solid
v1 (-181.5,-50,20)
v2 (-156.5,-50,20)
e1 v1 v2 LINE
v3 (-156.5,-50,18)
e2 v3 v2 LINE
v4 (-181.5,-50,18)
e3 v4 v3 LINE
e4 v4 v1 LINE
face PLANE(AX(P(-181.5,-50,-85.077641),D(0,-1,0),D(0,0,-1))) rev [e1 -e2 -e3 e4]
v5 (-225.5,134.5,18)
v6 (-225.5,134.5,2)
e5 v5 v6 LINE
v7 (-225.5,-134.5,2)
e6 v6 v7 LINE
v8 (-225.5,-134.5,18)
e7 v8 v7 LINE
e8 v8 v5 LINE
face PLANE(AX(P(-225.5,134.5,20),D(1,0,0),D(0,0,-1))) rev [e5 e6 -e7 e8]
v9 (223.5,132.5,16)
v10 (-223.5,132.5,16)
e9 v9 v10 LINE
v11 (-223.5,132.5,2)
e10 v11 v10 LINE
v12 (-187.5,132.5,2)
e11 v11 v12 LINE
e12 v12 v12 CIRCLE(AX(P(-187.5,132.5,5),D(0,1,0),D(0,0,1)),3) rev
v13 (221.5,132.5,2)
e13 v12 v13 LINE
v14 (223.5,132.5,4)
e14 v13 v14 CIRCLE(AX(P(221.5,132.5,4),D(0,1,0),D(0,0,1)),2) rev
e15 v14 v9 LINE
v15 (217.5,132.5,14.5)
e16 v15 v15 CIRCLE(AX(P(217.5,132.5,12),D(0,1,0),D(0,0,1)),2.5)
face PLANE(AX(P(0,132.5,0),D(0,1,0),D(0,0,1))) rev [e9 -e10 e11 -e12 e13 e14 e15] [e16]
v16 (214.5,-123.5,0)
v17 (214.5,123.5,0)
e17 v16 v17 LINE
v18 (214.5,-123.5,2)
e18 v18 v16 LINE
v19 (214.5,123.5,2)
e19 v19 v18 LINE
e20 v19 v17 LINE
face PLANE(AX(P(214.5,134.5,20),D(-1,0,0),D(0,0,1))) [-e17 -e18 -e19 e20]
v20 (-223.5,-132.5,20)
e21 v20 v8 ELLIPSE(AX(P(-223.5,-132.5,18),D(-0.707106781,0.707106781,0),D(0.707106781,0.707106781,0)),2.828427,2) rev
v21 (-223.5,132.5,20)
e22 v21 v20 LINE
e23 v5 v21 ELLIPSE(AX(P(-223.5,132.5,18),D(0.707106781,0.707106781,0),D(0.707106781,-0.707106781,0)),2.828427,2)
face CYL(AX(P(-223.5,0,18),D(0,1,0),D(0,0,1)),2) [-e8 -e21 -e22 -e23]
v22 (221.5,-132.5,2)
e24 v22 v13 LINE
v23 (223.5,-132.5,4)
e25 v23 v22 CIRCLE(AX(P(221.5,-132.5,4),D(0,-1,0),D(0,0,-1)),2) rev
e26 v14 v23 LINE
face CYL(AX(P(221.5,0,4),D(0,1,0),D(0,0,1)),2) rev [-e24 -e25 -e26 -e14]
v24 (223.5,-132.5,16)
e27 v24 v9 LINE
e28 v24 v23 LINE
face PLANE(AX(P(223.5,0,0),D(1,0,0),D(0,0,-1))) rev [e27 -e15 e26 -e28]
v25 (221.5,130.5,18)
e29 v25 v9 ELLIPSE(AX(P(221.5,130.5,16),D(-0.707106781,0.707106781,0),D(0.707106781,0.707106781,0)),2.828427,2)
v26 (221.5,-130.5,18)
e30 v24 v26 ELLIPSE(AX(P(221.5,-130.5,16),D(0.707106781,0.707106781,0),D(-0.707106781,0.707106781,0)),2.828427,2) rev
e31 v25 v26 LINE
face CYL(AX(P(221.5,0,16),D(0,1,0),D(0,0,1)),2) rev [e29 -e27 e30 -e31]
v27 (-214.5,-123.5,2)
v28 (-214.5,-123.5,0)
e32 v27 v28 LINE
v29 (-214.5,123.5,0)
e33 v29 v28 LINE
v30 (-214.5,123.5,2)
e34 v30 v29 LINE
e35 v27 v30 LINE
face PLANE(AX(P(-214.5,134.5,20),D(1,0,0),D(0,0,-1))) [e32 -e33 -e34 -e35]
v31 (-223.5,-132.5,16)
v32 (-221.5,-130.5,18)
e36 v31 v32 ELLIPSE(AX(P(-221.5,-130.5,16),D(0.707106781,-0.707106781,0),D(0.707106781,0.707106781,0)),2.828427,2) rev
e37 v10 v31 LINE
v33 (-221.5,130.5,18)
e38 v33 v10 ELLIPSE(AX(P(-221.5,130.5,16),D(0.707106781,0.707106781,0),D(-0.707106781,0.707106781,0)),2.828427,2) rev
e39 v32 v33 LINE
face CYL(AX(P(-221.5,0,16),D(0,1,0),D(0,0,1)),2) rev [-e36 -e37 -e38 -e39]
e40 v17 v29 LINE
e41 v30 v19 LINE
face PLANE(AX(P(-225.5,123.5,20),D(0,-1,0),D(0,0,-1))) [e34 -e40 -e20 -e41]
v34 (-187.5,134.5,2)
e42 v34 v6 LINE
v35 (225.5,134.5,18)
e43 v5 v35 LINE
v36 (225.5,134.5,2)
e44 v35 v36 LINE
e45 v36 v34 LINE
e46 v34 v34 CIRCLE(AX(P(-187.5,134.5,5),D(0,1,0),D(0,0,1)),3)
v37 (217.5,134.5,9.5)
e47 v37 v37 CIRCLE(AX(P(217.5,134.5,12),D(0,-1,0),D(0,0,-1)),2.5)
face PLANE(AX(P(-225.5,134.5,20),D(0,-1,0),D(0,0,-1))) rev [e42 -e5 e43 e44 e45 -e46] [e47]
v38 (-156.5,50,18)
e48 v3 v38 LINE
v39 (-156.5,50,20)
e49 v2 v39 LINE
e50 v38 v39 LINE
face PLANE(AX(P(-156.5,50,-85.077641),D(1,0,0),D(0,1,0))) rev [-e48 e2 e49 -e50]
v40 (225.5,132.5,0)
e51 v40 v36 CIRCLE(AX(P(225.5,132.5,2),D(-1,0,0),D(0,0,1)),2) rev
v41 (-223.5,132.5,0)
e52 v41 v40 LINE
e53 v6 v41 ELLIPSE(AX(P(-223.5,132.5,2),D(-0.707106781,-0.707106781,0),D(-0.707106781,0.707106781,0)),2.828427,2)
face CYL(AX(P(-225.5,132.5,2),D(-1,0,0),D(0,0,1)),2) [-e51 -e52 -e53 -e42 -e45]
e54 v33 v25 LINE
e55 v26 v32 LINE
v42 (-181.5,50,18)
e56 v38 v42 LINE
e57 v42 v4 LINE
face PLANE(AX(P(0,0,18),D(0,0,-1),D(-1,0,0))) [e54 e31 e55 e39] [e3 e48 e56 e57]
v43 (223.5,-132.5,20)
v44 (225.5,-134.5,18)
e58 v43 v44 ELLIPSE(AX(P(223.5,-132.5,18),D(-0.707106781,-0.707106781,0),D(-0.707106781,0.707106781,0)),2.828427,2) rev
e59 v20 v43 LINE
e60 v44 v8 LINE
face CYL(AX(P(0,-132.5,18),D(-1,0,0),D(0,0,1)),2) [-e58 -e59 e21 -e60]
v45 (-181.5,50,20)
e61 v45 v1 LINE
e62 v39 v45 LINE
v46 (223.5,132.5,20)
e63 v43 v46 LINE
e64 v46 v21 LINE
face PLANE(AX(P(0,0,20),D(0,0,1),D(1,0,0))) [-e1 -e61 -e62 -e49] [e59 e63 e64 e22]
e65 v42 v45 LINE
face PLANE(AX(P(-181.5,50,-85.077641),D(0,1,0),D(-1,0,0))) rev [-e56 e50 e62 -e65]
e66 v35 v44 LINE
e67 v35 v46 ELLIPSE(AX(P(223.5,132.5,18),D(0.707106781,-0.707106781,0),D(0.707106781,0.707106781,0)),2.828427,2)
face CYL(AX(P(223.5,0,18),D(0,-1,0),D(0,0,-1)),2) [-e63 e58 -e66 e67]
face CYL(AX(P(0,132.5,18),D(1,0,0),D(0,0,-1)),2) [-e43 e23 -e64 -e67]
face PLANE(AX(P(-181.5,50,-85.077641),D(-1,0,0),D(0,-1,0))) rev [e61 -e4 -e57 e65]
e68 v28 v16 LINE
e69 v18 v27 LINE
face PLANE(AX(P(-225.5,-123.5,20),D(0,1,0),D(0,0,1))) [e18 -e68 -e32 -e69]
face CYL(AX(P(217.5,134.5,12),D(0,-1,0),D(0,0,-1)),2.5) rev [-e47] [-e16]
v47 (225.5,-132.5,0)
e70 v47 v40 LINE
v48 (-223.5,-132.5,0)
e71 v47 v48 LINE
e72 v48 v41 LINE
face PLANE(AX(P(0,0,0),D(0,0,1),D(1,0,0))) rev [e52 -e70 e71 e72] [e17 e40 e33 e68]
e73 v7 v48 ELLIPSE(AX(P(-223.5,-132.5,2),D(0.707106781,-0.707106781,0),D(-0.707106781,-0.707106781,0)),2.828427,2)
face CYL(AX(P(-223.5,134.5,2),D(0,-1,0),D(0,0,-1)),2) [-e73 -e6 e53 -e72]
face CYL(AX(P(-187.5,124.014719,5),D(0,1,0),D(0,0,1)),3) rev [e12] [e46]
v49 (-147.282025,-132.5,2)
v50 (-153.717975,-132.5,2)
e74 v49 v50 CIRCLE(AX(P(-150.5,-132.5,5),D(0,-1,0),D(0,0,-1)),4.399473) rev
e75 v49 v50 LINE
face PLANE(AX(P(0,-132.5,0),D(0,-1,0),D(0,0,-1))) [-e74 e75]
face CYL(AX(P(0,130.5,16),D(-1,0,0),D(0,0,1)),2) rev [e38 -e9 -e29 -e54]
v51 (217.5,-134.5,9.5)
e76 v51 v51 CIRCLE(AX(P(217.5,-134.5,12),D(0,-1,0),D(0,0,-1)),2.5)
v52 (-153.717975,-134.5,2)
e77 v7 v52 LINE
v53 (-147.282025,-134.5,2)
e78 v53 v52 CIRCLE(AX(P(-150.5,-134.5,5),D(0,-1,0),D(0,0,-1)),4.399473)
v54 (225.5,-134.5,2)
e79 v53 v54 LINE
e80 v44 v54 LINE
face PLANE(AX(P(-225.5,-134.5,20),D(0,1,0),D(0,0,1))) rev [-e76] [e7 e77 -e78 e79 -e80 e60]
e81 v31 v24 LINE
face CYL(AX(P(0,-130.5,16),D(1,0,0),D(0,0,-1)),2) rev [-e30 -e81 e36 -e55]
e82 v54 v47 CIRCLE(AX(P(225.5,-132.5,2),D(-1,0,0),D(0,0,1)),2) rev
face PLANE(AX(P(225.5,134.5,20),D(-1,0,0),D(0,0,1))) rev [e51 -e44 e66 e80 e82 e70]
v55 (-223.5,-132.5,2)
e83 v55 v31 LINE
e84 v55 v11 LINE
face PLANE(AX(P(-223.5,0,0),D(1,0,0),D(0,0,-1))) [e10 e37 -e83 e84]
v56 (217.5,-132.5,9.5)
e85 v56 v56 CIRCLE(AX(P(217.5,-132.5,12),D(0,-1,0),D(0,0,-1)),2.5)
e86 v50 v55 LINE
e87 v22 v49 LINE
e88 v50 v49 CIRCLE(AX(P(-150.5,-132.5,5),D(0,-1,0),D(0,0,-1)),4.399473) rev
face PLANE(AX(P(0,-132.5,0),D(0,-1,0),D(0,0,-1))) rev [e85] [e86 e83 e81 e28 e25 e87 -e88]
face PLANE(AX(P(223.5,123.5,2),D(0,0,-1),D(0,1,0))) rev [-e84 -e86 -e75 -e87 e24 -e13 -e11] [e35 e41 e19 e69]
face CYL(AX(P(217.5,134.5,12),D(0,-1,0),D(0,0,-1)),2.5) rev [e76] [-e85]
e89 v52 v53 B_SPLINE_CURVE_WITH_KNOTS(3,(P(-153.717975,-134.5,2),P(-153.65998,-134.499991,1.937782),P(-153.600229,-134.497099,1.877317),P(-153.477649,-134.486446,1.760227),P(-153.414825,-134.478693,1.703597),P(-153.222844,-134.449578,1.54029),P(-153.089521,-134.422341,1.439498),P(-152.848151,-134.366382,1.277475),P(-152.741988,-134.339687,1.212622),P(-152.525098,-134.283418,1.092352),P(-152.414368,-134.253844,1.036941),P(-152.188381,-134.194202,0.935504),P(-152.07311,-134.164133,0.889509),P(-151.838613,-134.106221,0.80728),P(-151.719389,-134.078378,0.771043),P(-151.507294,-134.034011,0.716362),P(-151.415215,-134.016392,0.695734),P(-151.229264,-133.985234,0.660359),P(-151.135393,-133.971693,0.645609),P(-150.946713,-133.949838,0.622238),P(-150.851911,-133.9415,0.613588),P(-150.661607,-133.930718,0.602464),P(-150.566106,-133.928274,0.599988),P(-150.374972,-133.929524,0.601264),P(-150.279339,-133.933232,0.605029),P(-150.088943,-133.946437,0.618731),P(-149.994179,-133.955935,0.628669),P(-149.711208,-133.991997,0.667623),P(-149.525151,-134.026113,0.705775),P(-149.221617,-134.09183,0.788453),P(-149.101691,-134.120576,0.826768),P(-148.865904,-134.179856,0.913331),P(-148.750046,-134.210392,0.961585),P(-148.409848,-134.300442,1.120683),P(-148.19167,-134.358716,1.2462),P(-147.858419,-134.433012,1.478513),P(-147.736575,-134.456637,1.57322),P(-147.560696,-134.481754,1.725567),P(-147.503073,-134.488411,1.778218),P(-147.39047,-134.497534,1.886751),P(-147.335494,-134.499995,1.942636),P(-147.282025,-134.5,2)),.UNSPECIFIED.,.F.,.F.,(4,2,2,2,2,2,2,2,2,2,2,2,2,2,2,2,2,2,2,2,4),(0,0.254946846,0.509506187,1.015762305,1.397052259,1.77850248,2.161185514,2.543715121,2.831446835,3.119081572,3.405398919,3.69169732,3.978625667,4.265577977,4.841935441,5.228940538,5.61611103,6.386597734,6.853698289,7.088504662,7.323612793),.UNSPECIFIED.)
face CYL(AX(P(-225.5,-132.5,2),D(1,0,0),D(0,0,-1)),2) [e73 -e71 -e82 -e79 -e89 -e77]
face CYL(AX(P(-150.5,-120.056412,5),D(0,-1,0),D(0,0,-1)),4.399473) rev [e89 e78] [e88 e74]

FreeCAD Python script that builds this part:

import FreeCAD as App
import Part
import Sketcher
from FreeCAD import Vector
Q = App.Units.Quantity


def edges_at(feature, points):
    """Names of the edges that pass closest to the given points."""
    edges = feature.Shape.Edges
    near = lambda p: min(range(len(edges)), key=lambda i: edges[i].distToShape(Part.Vertex(*p))[0])
    return sorted({f"Edge{near(p) + 1}" for p in points})


def faces_at(feature, points):
    """Names of the faces that lie closest to the given points."""
    faces = feature.Shape.Faces
    near = lambda p: min(range(len(faces)), key=lambda i: faces[i].distToShape(Part.Vertex(*p))[0])
    return sorted({f"Face{near(p) + 1}" for p in points})

doc = App.newDocument("Part")
body = doc.addObject("PartDesign::Body", "Body")

sketch1 = doc.addObject("Sketcher::SketchObject", "Sketch")
body.addObject(sketch1)
sketch1.AttachmentSupport = (doc.XY_Plane, [""])
sketch1.MapMode = "FlatFace"
sketch1.addGeometry([
    Part.LineSegment(Vector(-226, 134, 0), Vector(-226, -134, 0)),
    Part.LineSegment(Vector(-226, -134, 0), Vector(226, -134, 0)),
    Part.LineSegment(Vector(226, -134, 0), Vector(226, 134, 0)),
    Part.LineSegment(Vector(226, 134, 0), Vector(-226, 134, 0)),
], False)
sketch1.addConstraint([
    Sketcher.Constraint("Coincident", 0, 2, 1, 1),
    Sketcher.Constraint("Coincident", 1, 2, 2, 1),
    Sketcher.Constraint("Coincident", 2, 2, 3, 1),
    Sketcher.Constraint("Coincident", 3, 2, 0, 1),
    Sketcher.Constraint("Vertical", 0),
    Sketcher.Constraint("Horizontal", 1),
    Sketcher.Constraint("Vertical", 2),
    Sketcher.Constraint("Horizontal", 3),
    Sketcher.Constraint("Symmetric", 0, 2, 2, 2, -1, 1),
    Sketcher.Constraint("DistanceX", 1, 1, 1, 2, Q("451 mm")),
    Sketcher.Constraint("DistanceY", 0, 2, 0, 1, Q("269 mm")),
])
pad1 = doc.addObject("PartDesign::Pad", "Pad")
body.addObject(pad1)
pad1.Profile = sketch1
pad1.Length = 20
doc.recompute()

thickness = doc.addObject("PartDesign::Thickness", "Thickness")
body.addObject(thickness)
thickness.Base = (pad1, faces_at(pad1, [(0, 0, 0)]))
thickness.Value = 11
thickness.Reversed = True
thickness.Join = "Intersection"

sketch2 = doc.addObject("Sketcher::SketchObject", "Sketch001")
body.addObject(sketch2)
sketch2.AttachmentSupport = (doc.XY_Plane, [""])
sketch2.MapMode = "FlatFace"
sketch2.AttachmentOffset = App.Placement(Vector(0, 0, 9), App.Rotation())
sketch2.addGeometry([
    Part.LineSegment(Vector(214, 124, 0), Vector(214, -124, 0)),
    Part.LineSegment(Vector(214, -124, 0), Vector(-214, -124, 0)),
    Part.LineSegment(Vector(-214, -124, 0), Vector(-214, 124, 0)),
    Part.LineSegment(Vector(-214, 124, 0), Vector(214, 124, 0)),
], False)
sketch2.addConstraint([
    Sketcher.Constraint("Coincident", 0, 2, 1, 1),
    Sketcher.Constraint("Coincident", 1, 2, 2, 1),
    Sketcher.Constraint("Coincident", 2, 2, 3, 1),
    Sketcher.Constraint("Coincident", 3, 2, 0, 1),
    Sketcher.Constraint("Vertical", 0),
    Sketcher.Constraint("Horizontal", 1),
    Sketcher.Constraint("Vertical", 2),
    Sketcher.Constraint("Horizontal", 3),
    Sketcher.Constraint("Symmetric", 0, 2, 2, 2, -1, 1),
    Sketcher.Constraint("DistanceX", 1, 2, 1, 1, Q("429 mm")),
    Sketcher.Constraint("DistanceY", 0, 2, 0, 1, Q("247 mm")),
])
pocket1 = doc.addObject("PartDesign::Pocket", "Pocket")
body.addObject(pocket1)
pocket1.Profile = sketch2
pocket1.Length = 9
pocket1.Reversed = True

sketch3 = doc.addObject("Sketcher::SketchObject", "Sketch002")
body.addObject(sketch3)
sketch3.AttachmentSupport = (doc.YZ_Plane, [""])
sketch3.MapMode = "FlatFace"
sketch3.AttachmentOffset = App.Placement(Vector(0, 0, 214.5), App.Rotation())
sketch3.addGeometry([
    Part.LineSegment(Vector(124, 2, 0), Vector(-124, 2, 0)),
    Part.LineSegment(Vector(-124, 2, 0), Vector(-124, 18, 0)),
    Part.LineSegment(Vector(-124, 18, 0), Vector(124, 18, 0)),
    Part.LineSegment(Vector(124, 18, 0), Vector(124, 2, 0)),
], False)
sketch3.addConstraint([
    Sketcher.Constraint("Coincident", 0, 2, 1, 1),
    Sketcher.Constraint("Coincident", 1, 2, 2, 1),
    Sketcher.Constraint("Coincident", 2, 2, 3, 1),
    Sketcher.Constraint("Coincident", 3, 2, 0, 1),
    Sketcher.Constraint("Horizontal", 0),
    Sketcher.Constraint("Vertical", 1),
    Sketcher.Constraint("Horizontal", 2),
    Sketcher.Constraint("Vertical", 3),
    Sketcher.Constraint("DistanceX", 0, 2, 0, 1, Q("247 mm")),
    Sketcher.Constraint("DistanceY", 1, 1, 1, 2, Q("16 mm")),
    Sketcher.Constraint("DistanceY", -1, 1, 0, 2, Q("2 mm")),
    Sketcher.Constraint("DistanceX", 0, 2, -1, 1, Q("123.5 mm")),
])
pocket2 = doc.addObject("PartDesign::Pocket", "Pocket001")
body.addObject(pocket2)
pocket2.Profile = sketch3
pocket2.Length = 9
pocket2.Reversed = True

sketch4 = doc.addObject("Sketcher::SketchObject", "Sketch003")
body.addObject(sketch4)
sketch4.AttachmentSupport = (doc.XZ_Plane, [""])
sketch4.MapMode = "FlatFace"
sketch4.AttachmentOffset = App.Placement(Vector(0, 0, -123.5), App.Rotation())
sketch4.addGeometry([
    Part.LineSegment(Vector(-214, 18, 0), Vector(-214, 2, 0)),
    Part.LineSegment(Vector(-214, 2, 0), Vector(224, 2, 0)),
    Part.LineSegment(Vector(224, 2, 0), Vector(224, 18, 0)),
    Part.LineSegment(Vector(224, 18, 0), Vector(-214, 18, 0)),
], False)
sketch4.addConstraint([
    Sketcher.Constraint("Coincident", 0, 2, 1, 1),
    Sketcher.Constraint("Coincident", 1, 2, 2, 1),
    Sketcher.Constraint("Coincident", 2, 2, 3, 1),
    Sketcher.Constraint("Coincident", 3, 2, 0, 1),
    Sketcher.Constraint("Vertical", 0),
    Sketcher.Constraint("Horizontal", 1),
    Sketcher.Constraint("Vertical", 2),
    Sketcher.Constraint("Horizontal", 3),
    Sketcher.Constraint("DistanceX", 1, 1, 1, 2, Q("438 mm")),
    Sketcher.Constraint("DistanceY", 0, 2, 0, 1, Q("16 mm")),
    Sketcher.Constraint("DistanceY", -1, 1, 0, 2, Q("2 mm")),
    Sketcher.Constraint("DistanceX", 0, 2, -1, 1, Q("214.5 mm")),
])
pocket3 = doc.addObject("PartDesign::Pocket", "Pocket002")
body.addObject(pocket3)
pocket3.Profile = sketch4
pocket3.Length = 9

sketch5 = doc.addObject("Sketcher::SketchObject", "Sketch004")
body.addObject(sketch5)
sketch5.AttachmentSupport = (doc.YZ_Plane, [""])
sketch5.MapMode = "FlatFace"
sketch5.AttachmentOffset = App.Placement(Vector(0, 0, -214.5), App.Rotation())
sketch5.addGeometry([
    Part.LineSegment(Vector(132, 18, 0), Vector(-124, 18, 0)),
    Part.LineSegment(Vector(-124, 18, 0), Vector(-124, 2, 0)),
    Part.LineSegment(Vector(-124, 2, 0), Vector(132, 2, 0)),
    Part.LineSegment(Vector(132, 2, 0), Vector(132, 18, 0)),
], False)
sketch5.addConstraint([
    Sketcher.Constraint("Coincident", 0, 2, 1, 1),
    Sketcher.Constraint("Coincident", 1, 2, 2, 1),
    Sketcher.Constraint("Coincident", 2, 2, 3, 1),
    Sketcher.Constraint("Coincident", 3, 2, 0, 1),
    Sketcher.Constraint("Horizontal", 0),
    Sketcher.Constraint("Vertical", 1),
    Sketcher.Constraint("Horizontal", 2),
    Sketcher.Constraint("Vertical", 3),
    Sketcher.Constraint("DistanceX", 0, 2, 0, 1, Q("256 mm")),
    Sketcher.Constraint("DistanceY", 1, 2, 1, 1, Q("16 mm")),
    Sketcher.Constraint("DistanceY", -1, 1, 0, 2, Q("18 mm")),
    Sketcher.Constraint("DistanceX", 0, 2, -1, 1, Q("123.5 mm")),
])
pocket4 = doc.addObject("PartDesign::Pocket", "Pocket003")
body.addObject(pocket4)
pocket4.Profile = sketch5
pocket4.Length = 9

sketch6 = doc.addObject("Sketcher::SketchObject", "Sketch005")
body.addObject(sketch6)
sketch6.AttachmentSupport = (doc.XZ_Plane, [""])
sketch6.MapMode = "FlatFace"
sketch6.AttachmentOffset = App.Placement(Vector(0, 0, 123.5), App.Rotation())
sketch6.addGeometry([
    Part.LineSegment(Vector(-224, 2, 0), Vector(-224, 18, 0)),
    Part.LineSegment(Vector(-224, 18, 0), Vector(224, 18, 0)),
    Part.LineSegment(Vector(224, 18, 0), Vector(224, 2, 0)),
    Part.LineSegment(Vector(224, 2, 0), Vector(-224, 2, 0)),
], False)
sketch6.addConstraint([
    Sketcher.Constraint("Coincident", 0, 2, 1, 1),
    Sketcher.Constraint("Coincident", 1, 2, 2, 1),
    Sketcher.Constraint("Coincident", 2, 2, 3, 1),
    Sketcher.Constraint("Coincident", 3, 2, 0, 1),
    Sketcher.Constraint("Vertical", 0),
    Sketcher.Constraint("Horizontal", 1),
    Sketcher.Constraint("Vertical", 2),
    Sketcher.Constraint("Horizontal", 3),
    Sketcher.Constraint("DistanceX", 1, 1, 1, 2, Q("447 mm")),
    Sketcher.Constraint("DistanceY", 0, 1, 0, 2, Q("16 mm")),
    Sketcher.Constraint("DistanceY", -1, 1, 0, 2, Q("18 mm")),
    Sketcher.Constraint("DistanceX", 0, 2, -1, 1, Q("223.5 mm")),
])
pocket5 = doc.addObject("PartDesign::Pocket", "Pocket004")
body.addObject(pocket5)
pocket5.Profile = sketch6
pocket5.Length = 9
pocket5.Reversed = True

sketch7 = doc.addObject("Sketcher::SketchObject", "Sketch006")
body.addObject(sketch7)
sketch7.AttachmentSupport = (doc.XY_Plane, [""])
sketch7.MapMode = "FlatFace"
sketch7.AttachmentOffset = App.Placement(Vector(0, 0, 20), App.Rotation())
sketch7.addGeometry([
    Part.LineSegment(Vector(-182, 50, 0), Vector(-182, -50, 0)),
    Part.LineSegment(Vector(-182, -50, 0), Vector(-156, -50, 0)),
    Part.LineSegment(Vector(-156, -50, 0), Vector(-156, 50, 0)),
    Part.LineSegment(Vector(-156, 50, 0), Vector(-182, 50, 0)),
], False)
sketch7.addConstraint([
    Sketcher.Constraint("Coincident", 0, 2, 1, 1),
    Sketcher.Constraint("Coincident", 1, 2, 2, 1),
    Sketcher.Constraint("Coincident", 2, 2, 3, 1),
    Sketcher.Constraint("Coincident", 3, 2, 0, 1),
    Sketcher.Constraint("Vertical", 0),
    Sketcher.Constraint("Horizontal", 1),
    Sketcher.Constraint("Vertical", 2),
    Sketcher.Constraint("Horizontal", 3),
    Sketcher.Constraint("DistanceX", 1, 1, 1, 2, Q("25 mm")),
    Sketcher.Constraint("DistanceY", 0, 2, 0, 1, Q("100 mm")),
    Sketcher.Constraint("DistanceY", 0, 2, -1, 1, Q("50 mm")),
    Sketcher.Constraint("DistanceX", 0, 2, -1, 1, Q("181.5 mm")),
])
pocket6 = doc.addObject("PartDesign::Pocket", "Pocket005")
body.addObject(pocket6)
pocket6.Profile = sketch7
pocket6.Length = 2
doc.recompute()

fillet = doc.addObject("PartDesign::Fillet", "Fillet")
body.addObject(fillet)
fillet.Base = (pocket6, edges_at(pocket6, [
    (-225.5, 0, 20),
    (0, -134.5, 20),
    (223.5, 0, 2),
    (225.5, 0, 20),
    (0, -134.5, 0),
    (-225.5, 0, 0),
    (0, 134.5, 0),
    (0, 134.5, 20),
]))
fillet.Radius = 2
doc.recompute()

fillet2 = doc.addObject("PartDesign::Fillet", "Fillet001")
body.addObject(fillet2)
fillet2.Base = (fillet, edges_at(fillet, [
    (223.5, 0, 18),
    (0, 132.5, 18),
    (-223.5, 0, 18),
    (0, -132.5, 18),
]))
fillet2.Radius = 2

sketch8 = doc.addObject("Sketcher::SketchObject", "Sketch007")
body.addObject(sketch8)
sketch8.AttachmentSupport = (doc.XZ_Plane, [""])
sketch8.MapMode = "FlatFace"
sketch8.AttachmentOffset = App.Placement(Vector(0, 0, -134.5), App.Rotation())
sketch8.addGeometry(Part.Circle(Vector(-187.5, 5, 0), Vector(0, 0, 1), 3), False)
sketch8.addConstraint([
    Sketcher.Constraint("Diameter", 0, Q("6 mm")),
    Sketcher.Constraint("DistanceY", -1, 1, 0, 3, Q("5 mm")),
    Sketcher.Constraint("DistanceX", 0, 3, -1, 1, Q("187.5 mm")),
])
pocket7 = doc.addObject("PartDesign::Pocket", "Pocket006")
body.addObject(pocket7)
pocket7.Profile = sketch8
pocket7.Length = 2
pocket7.Reversed = True

sketch9 = doc.addObject("Sketcher::SketchObject", "Sketch008")
body.addObject(sketch9)
sketch9.AttachmentSupport = (doc.XZ_Plane, [""])
sketch9.MapMode = "FlatFace"
sketch9.AttachmentOffset = App.Placement(Vector(0, 0, 134.5), App.Rotation())
sketch9.addGeometry(Part.Circle(Vector(-150.5, 5, 0), Vector(0, 0, 1), 4.4), False)
sketch9.addConstraint([
    Sketcher.Constraint("DistanceY", -1, 1, 0, 3, Q("5 mm")),
    Sketcher.Constraint("DistanceX", 0, 3, -1, 1, Q("150.5 mm")),
    Sketcher.Constraint("Diameter", 0, Q("8.798945 mm")),
])
pocket8 = doc.addObject("PartDesign::Pocket", "Pocket007")
body.addObject(pocket8)
pocket8.Profile = sketch9
pocket8.Length = 2

sketch10 = doc.addObject("Sketcher::SketchObject", "Sketch009")
body.addObject(sketch10)
sketch10.AttachmentSupport = (doc.XZ_Plane, [""])
sketch10.MapMode = "FlatFace"
sketch10.AttachmentOffset = App.Placement(Vector(0, 0, 134.5), App.Rotation())
sketch10.addGeometry(Part.Circle(Vector(217.5, 12, 0), Vector(0, 0, 1), 2.5), False)
sketch10.addConstraint([
    Sketcher.Constraint("Diameter", 0, Q("5 mm")),
    Sketcher.Constraint("DistanceY", -1, 1, 0, 3, Q("12 mm")),
    Sketcher.Constraint("DistanceX", -1, 1, 0, 3, Q("217.5 mm")),
])
pocket9 = doc.addObject("PartDesign::Pocket", "Pocket008")
body.addObject(pocket9)
pocket9.Profile = sketch10
pocket9.Type = "ThroughAll"

doc.recompute()
